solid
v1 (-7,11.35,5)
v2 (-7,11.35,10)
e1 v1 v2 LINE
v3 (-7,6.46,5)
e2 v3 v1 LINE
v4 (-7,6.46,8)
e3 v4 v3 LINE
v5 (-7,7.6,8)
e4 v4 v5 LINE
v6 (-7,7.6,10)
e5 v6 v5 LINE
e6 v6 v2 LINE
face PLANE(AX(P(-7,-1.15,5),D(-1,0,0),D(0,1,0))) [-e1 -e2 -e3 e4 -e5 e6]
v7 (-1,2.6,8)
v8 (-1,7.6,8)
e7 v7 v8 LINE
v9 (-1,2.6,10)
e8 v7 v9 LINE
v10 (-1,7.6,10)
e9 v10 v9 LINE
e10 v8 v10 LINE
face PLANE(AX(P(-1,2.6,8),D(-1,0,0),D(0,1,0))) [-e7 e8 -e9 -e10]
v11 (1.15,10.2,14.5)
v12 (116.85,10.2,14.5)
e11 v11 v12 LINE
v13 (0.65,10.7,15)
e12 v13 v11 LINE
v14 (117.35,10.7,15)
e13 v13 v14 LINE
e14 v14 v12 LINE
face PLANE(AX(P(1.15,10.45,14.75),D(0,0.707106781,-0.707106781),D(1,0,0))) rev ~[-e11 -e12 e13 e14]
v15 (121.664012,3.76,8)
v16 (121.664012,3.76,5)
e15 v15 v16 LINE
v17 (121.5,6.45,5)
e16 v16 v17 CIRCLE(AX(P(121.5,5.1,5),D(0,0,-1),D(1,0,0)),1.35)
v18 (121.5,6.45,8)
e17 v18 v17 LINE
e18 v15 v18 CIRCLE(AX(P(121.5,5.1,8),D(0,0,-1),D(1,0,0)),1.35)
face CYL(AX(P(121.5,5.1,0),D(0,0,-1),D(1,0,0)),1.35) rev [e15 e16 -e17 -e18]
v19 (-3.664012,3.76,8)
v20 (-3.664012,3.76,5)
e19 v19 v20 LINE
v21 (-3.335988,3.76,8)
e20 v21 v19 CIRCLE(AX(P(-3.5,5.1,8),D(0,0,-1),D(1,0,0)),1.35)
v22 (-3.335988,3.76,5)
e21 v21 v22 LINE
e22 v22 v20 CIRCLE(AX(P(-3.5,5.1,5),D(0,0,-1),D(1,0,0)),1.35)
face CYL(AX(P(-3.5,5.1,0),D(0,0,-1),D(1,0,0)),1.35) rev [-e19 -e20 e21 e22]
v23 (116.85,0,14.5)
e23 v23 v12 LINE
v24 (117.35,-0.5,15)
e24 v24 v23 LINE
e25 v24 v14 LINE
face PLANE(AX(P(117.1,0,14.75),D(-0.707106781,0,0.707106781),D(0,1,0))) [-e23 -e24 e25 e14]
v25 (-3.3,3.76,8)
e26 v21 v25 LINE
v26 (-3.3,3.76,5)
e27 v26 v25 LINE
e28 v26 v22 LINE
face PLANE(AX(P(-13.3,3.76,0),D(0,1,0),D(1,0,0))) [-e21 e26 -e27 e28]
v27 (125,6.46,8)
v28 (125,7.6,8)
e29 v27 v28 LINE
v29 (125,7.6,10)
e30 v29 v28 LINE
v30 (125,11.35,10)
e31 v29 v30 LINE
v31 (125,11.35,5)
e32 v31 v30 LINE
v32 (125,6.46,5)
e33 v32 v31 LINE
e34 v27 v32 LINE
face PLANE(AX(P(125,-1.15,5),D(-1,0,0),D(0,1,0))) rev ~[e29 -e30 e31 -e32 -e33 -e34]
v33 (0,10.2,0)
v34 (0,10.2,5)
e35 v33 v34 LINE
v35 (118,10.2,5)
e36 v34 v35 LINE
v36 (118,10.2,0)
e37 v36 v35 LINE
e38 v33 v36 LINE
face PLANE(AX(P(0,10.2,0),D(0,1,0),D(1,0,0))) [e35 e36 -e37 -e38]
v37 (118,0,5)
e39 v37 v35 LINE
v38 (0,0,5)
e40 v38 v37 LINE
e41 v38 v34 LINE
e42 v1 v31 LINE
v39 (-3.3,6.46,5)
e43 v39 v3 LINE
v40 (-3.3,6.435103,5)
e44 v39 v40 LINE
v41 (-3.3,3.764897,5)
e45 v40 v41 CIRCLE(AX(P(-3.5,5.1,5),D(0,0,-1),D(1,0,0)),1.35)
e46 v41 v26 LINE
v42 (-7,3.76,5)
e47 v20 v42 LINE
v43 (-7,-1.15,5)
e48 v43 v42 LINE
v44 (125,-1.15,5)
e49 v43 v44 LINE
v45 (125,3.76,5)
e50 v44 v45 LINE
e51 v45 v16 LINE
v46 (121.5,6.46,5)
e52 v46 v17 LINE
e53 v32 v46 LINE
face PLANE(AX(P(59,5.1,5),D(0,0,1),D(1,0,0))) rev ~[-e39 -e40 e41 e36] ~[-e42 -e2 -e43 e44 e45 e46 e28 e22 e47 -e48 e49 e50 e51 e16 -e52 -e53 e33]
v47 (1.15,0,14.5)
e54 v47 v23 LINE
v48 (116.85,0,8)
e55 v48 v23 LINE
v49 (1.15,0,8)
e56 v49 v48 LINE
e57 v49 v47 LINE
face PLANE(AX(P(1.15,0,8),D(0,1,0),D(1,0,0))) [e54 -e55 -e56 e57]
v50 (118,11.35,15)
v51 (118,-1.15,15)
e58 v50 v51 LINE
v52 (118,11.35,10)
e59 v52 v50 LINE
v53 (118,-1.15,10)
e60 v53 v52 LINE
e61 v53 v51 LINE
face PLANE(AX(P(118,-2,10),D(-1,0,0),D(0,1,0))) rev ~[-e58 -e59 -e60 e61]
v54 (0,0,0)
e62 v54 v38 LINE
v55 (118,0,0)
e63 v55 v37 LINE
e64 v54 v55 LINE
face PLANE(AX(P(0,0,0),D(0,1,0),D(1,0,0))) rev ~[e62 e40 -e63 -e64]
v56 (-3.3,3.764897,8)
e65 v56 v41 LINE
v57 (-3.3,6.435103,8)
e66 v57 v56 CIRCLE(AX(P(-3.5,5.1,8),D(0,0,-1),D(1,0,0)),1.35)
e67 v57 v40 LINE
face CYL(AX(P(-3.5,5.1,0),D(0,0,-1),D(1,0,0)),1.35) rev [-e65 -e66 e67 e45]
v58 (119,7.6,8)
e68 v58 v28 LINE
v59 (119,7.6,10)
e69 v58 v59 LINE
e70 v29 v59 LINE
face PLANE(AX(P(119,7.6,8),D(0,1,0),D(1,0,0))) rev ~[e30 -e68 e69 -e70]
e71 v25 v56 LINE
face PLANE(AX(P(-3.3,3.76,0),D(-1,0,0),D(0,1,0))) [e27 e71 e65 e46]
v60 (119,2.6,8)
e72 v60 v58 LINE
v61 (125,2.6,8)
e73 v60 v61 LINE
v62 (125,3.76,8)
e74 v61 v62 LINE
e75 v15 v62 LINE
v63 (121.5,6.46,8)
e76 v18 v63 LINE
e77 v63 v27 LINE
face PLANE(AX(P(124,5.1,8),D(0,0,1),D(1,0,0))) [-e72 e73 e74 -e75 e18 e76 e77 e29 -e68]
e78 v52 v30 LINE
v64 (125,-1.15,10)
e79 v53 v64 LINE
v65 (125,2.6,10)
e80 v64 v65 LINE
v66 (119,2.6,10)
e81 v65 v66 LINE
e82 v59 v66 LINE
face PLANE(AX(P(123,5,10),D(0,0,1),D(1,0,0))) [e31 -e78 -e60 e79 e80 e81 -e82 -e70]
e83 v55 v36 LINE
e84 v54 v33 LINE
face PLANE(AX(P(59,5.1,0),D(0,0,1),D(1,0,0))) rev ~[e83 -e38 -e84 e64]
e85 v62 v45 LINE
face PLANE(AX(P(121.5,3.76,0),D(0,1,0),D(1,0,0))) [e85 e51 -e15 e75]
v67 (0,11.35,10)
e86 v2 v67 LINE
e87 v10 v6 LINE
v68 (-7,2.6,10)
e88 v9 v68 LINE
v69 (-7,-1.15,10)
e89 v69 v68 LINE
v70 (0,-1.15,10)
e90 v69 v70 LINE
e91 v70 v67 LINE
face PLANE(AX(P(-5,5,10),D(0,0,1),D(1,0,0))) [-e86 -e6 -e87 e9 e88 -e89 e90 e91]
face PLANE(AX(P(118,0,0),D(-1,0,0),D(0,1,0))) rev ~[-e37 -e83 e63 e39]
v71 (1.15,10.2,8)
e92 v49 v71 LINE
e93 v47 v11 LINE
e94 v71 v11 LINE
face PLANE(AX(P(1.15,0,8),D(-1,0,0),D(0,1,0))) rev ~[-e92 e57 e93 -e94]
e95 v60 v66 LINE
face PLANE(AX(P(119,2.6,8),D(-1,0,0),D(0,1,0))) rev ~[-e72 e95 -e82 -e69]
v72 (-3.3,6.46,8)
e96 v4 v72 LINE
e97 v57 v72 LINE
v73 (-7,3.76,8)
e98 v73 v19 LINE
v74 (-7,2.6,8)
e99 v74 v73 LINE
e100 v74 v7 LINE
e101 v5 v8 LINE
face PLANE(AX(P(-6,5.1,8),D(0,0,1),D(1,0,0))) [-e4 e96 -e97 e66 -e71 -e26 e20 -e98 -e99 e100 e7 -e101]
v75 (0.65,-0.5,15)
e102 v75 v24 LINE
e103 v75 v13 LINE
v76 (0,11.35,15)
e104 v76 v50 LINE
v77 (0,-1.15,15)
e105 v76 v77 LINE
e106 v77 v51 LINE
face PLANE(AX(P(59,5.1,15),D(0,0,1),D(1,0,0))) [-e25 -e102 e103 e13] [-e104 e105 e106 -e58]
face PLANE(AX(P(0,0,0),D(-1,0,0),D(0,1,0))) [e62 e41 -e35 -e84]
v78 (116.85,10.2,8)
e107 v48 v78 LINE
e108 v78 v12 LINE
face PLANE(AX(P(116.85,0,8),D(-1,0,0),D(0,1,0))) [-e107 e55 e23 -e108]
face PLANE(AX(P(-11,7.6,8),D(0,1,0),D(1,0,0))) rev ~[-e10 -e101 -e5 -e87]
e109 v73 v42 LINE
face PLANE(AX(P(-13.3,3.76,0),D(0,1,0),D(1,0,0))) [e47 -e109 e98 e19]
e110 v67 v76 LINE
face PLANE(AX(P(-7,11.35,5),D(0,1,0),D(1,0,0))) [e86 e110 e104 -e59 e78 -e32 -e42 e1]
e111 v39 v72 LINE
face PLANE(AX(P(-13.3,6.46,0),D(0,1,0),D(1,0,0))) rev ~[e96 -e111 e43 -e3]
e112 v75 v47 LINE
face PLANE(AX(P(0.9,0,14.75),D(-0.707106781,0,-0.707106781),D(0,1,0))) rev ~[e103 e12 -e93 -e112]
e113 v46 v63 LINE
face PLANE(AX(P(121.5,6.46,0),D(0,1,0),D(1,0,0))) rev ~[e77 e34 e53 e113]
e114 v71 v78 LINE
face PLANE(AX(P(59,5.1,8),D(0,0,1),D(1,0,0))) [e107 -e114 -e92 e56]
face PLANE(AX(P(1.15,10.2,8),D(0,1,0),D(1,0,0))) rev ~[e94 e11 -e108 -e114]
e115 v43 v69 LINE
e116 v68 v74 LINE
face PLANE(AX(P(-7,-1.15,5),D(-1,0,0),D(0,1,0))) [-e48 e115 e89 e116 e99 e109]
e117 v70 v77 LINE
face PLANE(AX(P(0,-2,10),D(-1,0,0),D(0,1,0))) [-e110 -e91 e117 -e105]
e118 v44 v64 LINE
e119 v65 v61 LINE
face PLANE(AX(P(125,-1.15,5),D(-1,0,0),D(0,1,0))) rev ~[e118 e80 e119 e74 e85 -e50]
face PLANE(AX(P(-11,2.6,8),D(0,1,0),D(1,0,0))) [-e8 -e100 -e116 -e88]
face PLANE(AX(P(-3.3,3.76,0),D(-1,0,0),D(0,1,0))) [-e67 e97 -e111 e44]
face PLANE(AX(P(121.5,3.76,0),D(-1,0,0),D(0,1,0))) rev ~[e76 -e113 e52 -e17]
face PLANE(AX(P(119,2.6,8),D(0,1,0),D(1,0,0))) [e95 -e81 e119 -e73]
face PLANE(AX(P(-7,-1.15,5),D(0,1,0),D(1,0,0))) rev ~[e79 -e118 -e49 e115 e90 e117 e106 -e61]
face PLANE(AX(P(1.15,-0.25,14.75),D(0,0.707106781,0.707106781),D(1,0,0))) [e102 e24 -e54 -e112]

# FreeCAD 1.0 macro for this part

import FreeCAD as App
import Part
import Sketcher
from FreeCAD import Vector
Q = App.Units.Quantity


def edges_at(feature, points):
    """Names of the edges that pass closest to the given points."""
    edges = feature.Shape.Edges
    near = lambda p: min(range(len(edges)), key=lambda i: edges[i].distToShape(Part.Vertex(*p))[0])
    return sorted({f"Edge{near(p) + 1}" for p in points})


def add_polygon(sketch, points):
    """Adds a closed chain of lines whose ends are joined by coincident constraints."""
    first, n = sketch.GeometryCount, len(points)
    for a, b in zip(points, points[1:] + points[:1]):
        sketch.addGeometry(Part.LineSegment(App.Vector(*a, 0), App.Vector(*b, 0)), False)
    for i in range(n):
        sketch.addConstraint(Sketcher.Constraint("Coincident", first + i, 2, first + (i + 1) % n, 1))

doc = App.newDocument("Part")
body = doc.addObject("PartDesign::Body", "Body")

# Sketch on XY plane
sketch1 = doc.addObject("Sketcher::SketchObject", "Sketch")
body.addObject(sketch1)
sketch1.AttachmentSupport = (doc.XY_Plane, [""])
sketch1.MapMode = "FlatFace"
sketch1.AttachmentOffset = App.Placement(Vector(0, 0, 10), App.Rotation())
add_polygon(sketch1, [(118, 12), (118, -2), (128, -2), (128, 12)])  # lines 0-3
sketch1.addConstraint([
    Sketcher.Constraint("Vertical", 0),
    Sketcher.Constraint("Horizontal", 1),
    Sketcher.Constraint("Vertical", 2),
    Sketcher.Constraint("Horizontal", 3),
    Sketcher.Constraint("DistanceX", 1, 1, 1, 2, Q("10 mm")),
    Sketcher.Constraint("DistanceY", 0, 2, 0, 1, Q("14 mm")),
    Sketcher.Constraint("DistanceX", -1, 1, 0, 2, Q("118 mm")),
    Sketcher.Constraint("DistanceY", 0, 2, -1, 1, Q("2 mm")),
])
pad1 = doc.addObject("PartDesign::Pad", "Pad")
body.addObject(pad1)
pad1.Profile = sketch1
pad1.Length = 10
body2 = doc.addObject("PartDesign::Body", "Body001")

# Sketch on XY plane
sketch2 = doc.addObject("Sketcher::SketchObject", "Sketch001")
body2.addObject(sketch2)
sketch2.AttachmentSupport = (doc.getObject("XY_Plane001"), [""])
sketch2.MapMode = "FlatFace"
add_polygon(sketch2, [(121.5, 6.46), (121.5, 3.76), (131.5, 3.76), (131.5, 6.46)])  # lines 0-3
sketch2.addConstraint([
    Sketcher.Constraint("Vertical", 0),
    Sketcher.Constraint("Horizontal", 1),
    Sketcher.Constraint("Vertical", 2),
    Sketcher.Constraint("Horizontal", 3),
    Sketcher.Constraint("DistanceX", 1, 1, 1, 2, Q("10 mm")),
    Sketcher.Constraint("DistanceY", 0, 2, 0, 1, Q("2.7 mm")),
    Sketcher.Constraint("DistanceX", -1, 1, 0, 2, Q("121.5 mm")),
    Sketcher.Constraint("DistanceY", -1, 1, 0, 2, Q("3.76 mm")),
])
pad2 = doc.addObject("PartDesign::Pad", "Pad001")
body2.addObject(pad2)
pad2.Profile = sketch2
pad2.Length = 10
body3 = doc.addObject("PartDesign::Body", "Body002")

# Sketch on XY plane
sketch3 = doc.addObject("Sketcher::SketchObject", "Sketch002")
body3.addObject(sketch3)
sketch3.AttachmentSupport = (doc.getObject("XY_Plane002"), [""])
sketch3.MapMode = "FlatFace"
sketch3.AttachmentOffset = App.Placement(Vector(0, 0, 10), App.Rotation())
add_polygon(sketch3, [(-10, 12), (-10, -2), (0, -2), (0, 12)])  # lines 0-3
sketch3.addConstraint([
    Sketcher.Constraint("Vertical", 0),
    Sketcher.Constraint("Horizontal", 1),
    Sketcher.Constraint("Vertical", 2),
    Sketcher.Constraint("Horizontal", 3),
    Sketcher.Constraint("PointOnObject", 1, 2, -2),
    Sketcher.Constraint("DistanceX", 1, 1, 1, 2, Q("10 mm")),
    Sketcher.Constraint("DistanceY", 0, 2, 0, 1, Q("14 mm")),
    Sketcher.Constraint("DistanceY", 0, 2, -1, 1, Q("2 mm")),
])
pad3 = doc.addObject("PartDesign::Pad", "Pad002")
body3.addObject(pad3)
pad3.Profile = sketch3
pad3.Length = 10
body4 = doc.addObject("PartDesign::Body", "Body003")

# Sketch on XY plane
sketch4 = doc.addObject("Sketcher::SketchObject", "Sketch003")
body4.addObject(sketch4)
sketch4.AttachmentSupport = (doc.getObject("XY_Plane003"), [""])
sketch4.MapMode = "FlatFace"
sketch4.addGeometry(Part.Circle(Vector(-3.5, 5.1, 0), Vector(0, 0, 1), 1.35), False)
sketch4.addConstraint([
    Sketcher.Constraint("Diameter", 0, Q("2.7 mm")),
    Sketcher.Constraint("DistanceX", 0, 3, -1, 1, Q("3.5 mm")),
    Sketcher.Constraint("DistanceY", -1, 1, 0, 3, Q("5.1 mm")),
])
pad4 = doc.addObject("PartDesign::Pad", "Pad003")
body4.addObject(pad4)
pad4.Profile = sketch4
pad4.Length = 10
body5 = doc.addObject("PartDesign::Body", "Body004")

# Sketch on XY plane
sketch5 = doc.addObject("Sketcher::SketchObject", "Sketch004")
body5.addObject(sketch5)
sketch5.AttachmentSupport = (doc.getObject("XY_Plane004"), [""])
sketch5.MapMode = "FlatFace"
add_polygon(sketch5, [(-13.3, 6.46), (-13.3, 3.76), (-3.3, 3.76), (-3.3, 6.46)])  # lines 0-3
sketch5.addConstraint([
    Sketcher.Constraint("Vertical", 0),
    Sketcher.Constraint("Horizontal", 1),
    Sketcher.Constraint("Vertical", 2),
    Sketcher.Constraint("Horizontal", 3),
    Sketcher.Constraint("DistanceX", 1, 1, 1, 2, Q("10 mm")),
    Sketcher.Constraint("DistanceY", 0, 2, 0, 1, Q("2.7 mm")),
    Sketcher.Constraint("DistanceX", 0, 2, -1, 1, Q("13.3 mm")),
    Sketcher.Constraint("DistanceY", -1, 1, 0, 2, Q("3.76 mm")),
])
pad5 = doc.addObject("PartDesign::Pad", "Pad004")
body5.addObject(pad5)
pad5.Profile = sketch5
pad5.Length = 10
body6 = doc.addObject("PartDesign::Body", "Body005")

# Sketch on XY plane
sketch6 = doc.addObject("Sketcher::SketchObject", "Sketch005")
body6.addObject(sketch6)
sketch6.AttachmentSupport = (doc.getObject("XY_Plane005"), [""])
sketch6.MapMode = "FlatFace"
sketch6.addGeometry(Part.Circle(Vector(121.5, 5.1, 0), Vector(0, 0, 1), 1.35), False)
sketch6.addConstraint([
    Sketcher.Constraint("Diameter", 0, Q("2.7 mm")),
    Sketcher.Constraint("DistanceX", -1, 1, 0, 3, Q("121.5 mm")),
    Sketcher.Constraint("DistanceY", -1, 1, 0, 3, Q("5.1 mm")),
])
pad6 = doc.addObject("PartDesign::Pad", "Pad005")
body6.addObject(pad6)
pad6.Profile = sketch6
pad6.Length = 10
body7 = doc.addObject("PartDesign::Body", "Body006")

# Sketch on XY plane
sketch7 = doc.addObject("Sketcher::SketchObject", "Sketch006")
body7.addObject(sketch7)
sketch7.AttachmentSupport = (doc.getObject("XY_Plane006"), [""])
sketch7.MapMode = "FlatFace"
sketch7.AttachmentOffset = App.Placement(Vector(0, 0, 8), App.Rotation())
add_polygon(sketch7, [(-11, 7.6), (-11, 2.6), (-1, 2.6), (-1, 7.6)])  # lines 0-3
sketch7.addConstraint([
    Sketcher.Constraint("Vertical", 0),
    Sketcher.Constraint("Horizontal", 1),
    Sketcher.Constraint("Vertical", 2),
    Sketcher.Constraint("Horizontal", 3),
    Sketcher.Constraint("DistanceX", 1, 1, 1, 2, Q("10 mm")),
    Sketcher.Constraint("DistanceY", 0, 2, 0, 1, Q("5 mm")),
    Sketcher.Constraint("DistanceX", 0, 2, -1, 1, Q("11 mm")),
    Sketcher.Constraint("DistanceY", -1, 1, 0, 2, Q("2.6 mm")),
])
pad7 = doc.addObject("PartDesign::Pad", "Pad006")
body7.addObject(pad7)
pad7.Profile = sketch7
pad7.Length = 10
body8 = doc.addObject("PartDesign::Body", "Body007")

# Sketch on XY plane
sketch8 = doc.addObject("Sketcher::SketchObject", "Sketch007")
body8.addObject(sketch8)
sketch8.AttachmentSupport = (doc.getObject("XY_Plane007"), [""])
sketch8.MapMode = "FlatFace"
sketch8.AttachmentOffset = App.Placement(Vector(0, 0, 8), App.Rotation())
add_polygon(sketch8, [(119, 7.6), (119, 2.6), (129, 2.6), (129, 7.6)])  # lines 0-3
sketch8.addConstraint([
    Sketcher.Constraint("Vertical", 0),
    Sketcher.Constraint("Horizontal", 1),
    Sketcher.Constraint("Vertical", 2),
    Sketcher.Constraint("Horizontal", 3),
    Sketcher.Constraint("DistanceX", 1, 1, 1, 2, Q("10 mm")),
    Sketcher.Constraint("DistanceY", 0, 2, 0, 1, Q("5 mm")),
    Sketcher.Constraint("DistanceX", -1, 1, 0, 2, Q("119 mm")),
    Sketcher.Constraint("DistanceY", -1, 1, 0, 2, Q("2.6 mm")),
])
pad8 = doc.addObject("PartDesign::Pad", "Pad007")
body8.addObject(pad8)
pad8.Profile = sketch8
pad8.Length = 10
body9 = doc.addObject("PartDesign::Body", "Body008")
body9.AllowCompound = True

# Sketch on XY plane
sketch9 = doc.addObject("Sketcher::SketchObject", "Sketch008")
body9.addObject(sketch9)
sketch9.AttachmentSupport = (doc.getObject("XY_Plane008"), [""])
sketch9.MapMode = "FlatFace"
sketch9.AttachmentOffset = App.Placement(Vector(0, 0, 8), App.Rotation())
add_polygon(sketch9, [(1.15, 10.2), (1.15, 0), (116.85, 0), (116.85, 10.2)])  # lines 0-3
sketch9.addConstraint([
    Sketcher.Constraint("Vertical", 0),
    Sketcher.Constraint("Horizontal", 1),
    Sketcher.Constraint("Vertical", 2),
    Sketcher.Constraint("Horizontal", 3),
    Sketcher.Constraint("PointOnObject", 0, 2, -1),
    Sketcher.Constraint("DistanceX", 1, 1, 1, 2, Q("115.7 mm")),
    Sketcher.Constraint("DistanceY", 0, 2, 0, 1, Q("10.2 mm")),
    Sketcher.Constraint("DistanceX", -1, 1, 0, 2, Q("1.15 mm")),
])
pad9 = doc.addObject("PartDesign::Pad", "Pad008")
body9.addObject(pad9)
pad9.Profile = sketch9
pad9.Length = 7
doc.recompute()

boolean = doc.addObject("PartDesign::Boolean", "Boolean")
body9.addObject(boolean)
boolean.Type = "Fuse"
boolean.addObjects([body])
doc.recompute()

boolean2 = doc.addObject("PartDesign::Boolean", "Boolean001")
body9.addObject(boolean2)
boolean2.Type = "Fuse"
boolean2.addObjects([body2])
doc.recompute()

boolean3 = doc.addObject("PartDesign::Boolean", "Boolean002")
body9.addObject(boolean3)
boolean3.Type = "Fuse"
boolean3.addObjects([body3])
doc.recompute()

boolean4 = doc.addObject("PartDesign::Boolean", "Boolean003")
body9.addObject(boolean4)
boolean4.Type = "Fuse"
boolean4.addObjects([body4])
doc.recompute()

boolean5 = doc.addObject("PartDesign::Boolean", "Boolean004")
body9.addObject(boolean5)
boolean5.Type = "Fuse"
boolean5.addObjects([body5])
doc.recompute()

boolean6 = doc.addObject("PartDesign::Boolean", "Boolean005")
body9.addObject(boolean6)
boolean6.Type = "Fuse"
boolean6.addObjects([body6])
doc.recompute()

boolean7 = doc.addObject("PartDesign::Boolean", "Boolean006")
body9.addObject(boolean7)
boolean7.Type = "Fuse"
boolean7.addObjects([body7])
doc.recompute()

boolean8 = doc.addObject("PartDesign::Boolean", "Boolean007")
body9.addObject(boolean8)
boolean8.Type = "Fuse"
boolean8.addObjects([body8])
body10 = doc.addObject("PartDesign::Body", "Body009")

# Sketch on XY plane
sketch10 = doc.addObject("Sketcher::SketchObject", "Sketch009")
body10.addObject(sketch10)
sketch10.AttachmentSupport = (doc.getObject("XY_Plane009"), [""])
sketch10.MapMode = "FlatFace"
sketch10.AttachmentOffset = App.Placement(Vector(0, 0, 5), App.Rotation())
add_polygon(sketch10, [(-7, 11.35), (-7, -1.15), (125, -1.15), (125, 11.35)])  # lines 0-3
sketch10.addConstraint([
    Sketcher.Constraint("Vertical", 0),
    Sketcher.Constraint("Horizontal", 1),
    Sketcher.Constraint("Vertical", 2),
    Sketcher.Constraint("Horizontal", 3),
    Sketcher.Constraint("DistanceX", 1, 1, 1, 2, Q("132 mm")),
    Sketcher.Constraint("DistanceY", 0, 2, 0, 1, Q("12.5 mm")),
    Sketcher.Constraint("DistanceX", 0, 2, -1, 1, Q("7 mm")),
    Sketcher.Constraint("DistanceY", 0, 2, -1, 1, Q("1.15 mm")),
])
pad10 = doc.addObject("PartDesign::Pad", "Pad009")
body10.addObject(pad10)
pad10.Profile = sketch10
pad10.Length = 10
body11 = doc.addObject("PartDesign::Body", "Body010")

# Sketch on XY plane
sketch11 = doc.addObject("Sketcher::SketchObject", "Sketch010")
body11.addObject(sketch11)
sketch11.AttachmentSupport = (doc.getObject("XY_Plane010"), [""])
sketch11.MapMode = "FlatFace"
add_polygon(sketch11, [(0, 10.2), (0, 0), (118, 0), (118, 10.2)])  # lines 0-3
sketch11.addConstraint([
    Sketcher.Constraint("Vertical", 0),
    Sketcher.Constraint("Horizontal", 1),
    Sketcher.Constraint("Vertical", 2),
    Sketcher.Constraint("Horizontal", 3),
    Sketcher.Constraint("Coincident", 0, 2, -1, 1),
    Sketcher.Constraint("DistanceX", 1, 1, 1, 2, Q("118 mm")),
    Sketcher.Constraint("DistanceY", 0, 2, 0, 1, Q("10.2 mm")),
])
pad11 = doc.addObject("PartDesign::Pad", "Pad010")
body11.addObject(pad11)
pad11.Profile = sketch11
pad11.Length = 5
doc.recompute()

boolean9 = doc.addObject("PartDesign::Boolean", "Boolean008")
body11.addObject(boolean9)
boolean9.Type = "Fuse"
boolean9.addObjects([body10])
doc.recompute()

boolean10 = doc.addObject("PartDesign::Boolean", "Boolean009")
body11.addObject(boolean10)
boolean10.Type = "Cut"
boolean10.addObjects([body9])
doc.recompute()

chamfer = doc.addObject("PartDesign::Chamfer", "Chamfer")
body11.addObject(chamfer)
chamfer.Base = (boolean10, edges_at(boolean10, [
    (1.15, 5.1, 15),
    (59, 0, 15),
    (116.85, 5.1, 15),
    (59, 10.2, 15),
]))
chamfer.Size = 0.5

doc.recompute()
